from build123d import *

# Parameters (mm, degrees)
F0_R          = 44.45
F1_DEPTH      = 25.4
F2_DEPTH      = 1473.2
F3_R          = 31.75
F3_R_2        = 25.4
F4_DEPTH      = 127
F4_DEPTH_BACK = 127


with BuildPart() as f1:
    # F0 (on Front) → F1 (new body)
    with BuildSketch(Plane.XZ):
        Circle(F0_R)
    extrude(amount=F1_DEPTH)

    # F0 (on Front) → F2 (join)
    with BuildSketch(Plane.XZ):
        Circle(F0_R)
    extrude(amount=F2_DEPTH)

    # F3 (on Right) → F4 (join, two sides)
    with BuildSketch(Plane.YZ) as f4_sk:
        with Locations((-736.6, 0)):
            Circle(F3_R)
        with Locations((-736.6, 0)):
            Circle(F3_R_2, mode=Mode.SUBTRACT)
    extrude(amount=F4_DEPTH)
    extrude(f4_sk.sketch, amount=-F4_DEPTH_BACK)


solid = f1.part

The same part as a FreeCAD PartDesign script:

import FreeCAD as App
import Part
import Sketcher
from FreeCAD import Vector
Q = App.Units.Quantity

doc = App.newDocument("Part")
body = doc.addObject("PartDesign::Body", "Body")

# Sketch on XZ plane
sketch1 = body.newObject("Sketcher::SketchObject", "Sketch")
sketch1.AttachmentSupport = (doc.getObject("XZ_Plane"), [""])
sketch1.MapMode = "FlatFace"
sketch1.addGeometry(Part.Circle(Vector(0, 0, 0), Vector(0, 0, 1), 44.45), False)
sketch1.addConstraint(Sketcher.Constraint("Coincident", 0, 3, -1, 1))
sketch1.addConstraint(Sketcher.Constraint("Diameter", 0, Q("3.5 in")))
pad1 = body.newObject("PartDesign::Pad", "Pad")
pad1.Profile = sketch1
pad1.Length = Q("1 in")

# Sketch on XZ plane
sketch2 = body.newObject("Sketcher::SketchObject", "Sketch001")
sketch2.AttachmentSupport = (doc.getObject("XZ_Plane"), [""])
sketch2.MapMode = "FlatFace"
sketch2.addGeometry(Part.Circle(Vector(0, 0, 0), Vector(0, 0, 1), 44.45), False)
sketch2.addConstraint(Sketcher.Constraint("Coincident", 0, 3, -1, 1))
sketch2.addConstraint(Sketcher.Constraint("Diameter", 0, Q("3.5 in")))
pad2 = body.newObject("PartDesign::Pad", "Pad001")
pad2.Profile = sketch2
pad2.Length = Q("58 in")

# Sketch on YZ plane
sketch3 = body.newObject("Sketcher::SketchObject", "Sketch002")
sketch3.AttachmentSupport = (doc.getObject("YZ_Plane"), [""])
sketch3.MapMode = "FlatFace"
sketch3.addGeometry(Part.Circle(Vector(-736.6, 0, 0), Vector(0, 0, 1), 31.75), False)
sketch3.addGeometry(Part.Circle(Vector(-736.6, 0, 0), Vector(0, 0, 1), 25.4), False)
sketch3.addConstraint(Sketcher.Constraint("Coincident", 1, 3, 0, 3))
sketch3.addConstraint(Sketcher.Constraint("PointOnObject", 0, 3, -1))
sketch3.addConstraint(Sketcher.Constraint("Diameter", 1, Q("2 in")))
sketch3.addConstraint(Sketcher.Constraint("Diameter", 0, Q("2.5 in")))
sketch3.addConstraint(Sketcher.Constraint("DistanceX", 0, 3, -1, 1, Q("29 in")))
pad3 = body.newObject("PartDesign::Pad", "Pad002")
pad3.Profile = sketch3
pad3.Type = "TwoLengths"
pad3.Length = Q("5 in")
pad3.Length2 = Q("5 in")

doc.recompute()
